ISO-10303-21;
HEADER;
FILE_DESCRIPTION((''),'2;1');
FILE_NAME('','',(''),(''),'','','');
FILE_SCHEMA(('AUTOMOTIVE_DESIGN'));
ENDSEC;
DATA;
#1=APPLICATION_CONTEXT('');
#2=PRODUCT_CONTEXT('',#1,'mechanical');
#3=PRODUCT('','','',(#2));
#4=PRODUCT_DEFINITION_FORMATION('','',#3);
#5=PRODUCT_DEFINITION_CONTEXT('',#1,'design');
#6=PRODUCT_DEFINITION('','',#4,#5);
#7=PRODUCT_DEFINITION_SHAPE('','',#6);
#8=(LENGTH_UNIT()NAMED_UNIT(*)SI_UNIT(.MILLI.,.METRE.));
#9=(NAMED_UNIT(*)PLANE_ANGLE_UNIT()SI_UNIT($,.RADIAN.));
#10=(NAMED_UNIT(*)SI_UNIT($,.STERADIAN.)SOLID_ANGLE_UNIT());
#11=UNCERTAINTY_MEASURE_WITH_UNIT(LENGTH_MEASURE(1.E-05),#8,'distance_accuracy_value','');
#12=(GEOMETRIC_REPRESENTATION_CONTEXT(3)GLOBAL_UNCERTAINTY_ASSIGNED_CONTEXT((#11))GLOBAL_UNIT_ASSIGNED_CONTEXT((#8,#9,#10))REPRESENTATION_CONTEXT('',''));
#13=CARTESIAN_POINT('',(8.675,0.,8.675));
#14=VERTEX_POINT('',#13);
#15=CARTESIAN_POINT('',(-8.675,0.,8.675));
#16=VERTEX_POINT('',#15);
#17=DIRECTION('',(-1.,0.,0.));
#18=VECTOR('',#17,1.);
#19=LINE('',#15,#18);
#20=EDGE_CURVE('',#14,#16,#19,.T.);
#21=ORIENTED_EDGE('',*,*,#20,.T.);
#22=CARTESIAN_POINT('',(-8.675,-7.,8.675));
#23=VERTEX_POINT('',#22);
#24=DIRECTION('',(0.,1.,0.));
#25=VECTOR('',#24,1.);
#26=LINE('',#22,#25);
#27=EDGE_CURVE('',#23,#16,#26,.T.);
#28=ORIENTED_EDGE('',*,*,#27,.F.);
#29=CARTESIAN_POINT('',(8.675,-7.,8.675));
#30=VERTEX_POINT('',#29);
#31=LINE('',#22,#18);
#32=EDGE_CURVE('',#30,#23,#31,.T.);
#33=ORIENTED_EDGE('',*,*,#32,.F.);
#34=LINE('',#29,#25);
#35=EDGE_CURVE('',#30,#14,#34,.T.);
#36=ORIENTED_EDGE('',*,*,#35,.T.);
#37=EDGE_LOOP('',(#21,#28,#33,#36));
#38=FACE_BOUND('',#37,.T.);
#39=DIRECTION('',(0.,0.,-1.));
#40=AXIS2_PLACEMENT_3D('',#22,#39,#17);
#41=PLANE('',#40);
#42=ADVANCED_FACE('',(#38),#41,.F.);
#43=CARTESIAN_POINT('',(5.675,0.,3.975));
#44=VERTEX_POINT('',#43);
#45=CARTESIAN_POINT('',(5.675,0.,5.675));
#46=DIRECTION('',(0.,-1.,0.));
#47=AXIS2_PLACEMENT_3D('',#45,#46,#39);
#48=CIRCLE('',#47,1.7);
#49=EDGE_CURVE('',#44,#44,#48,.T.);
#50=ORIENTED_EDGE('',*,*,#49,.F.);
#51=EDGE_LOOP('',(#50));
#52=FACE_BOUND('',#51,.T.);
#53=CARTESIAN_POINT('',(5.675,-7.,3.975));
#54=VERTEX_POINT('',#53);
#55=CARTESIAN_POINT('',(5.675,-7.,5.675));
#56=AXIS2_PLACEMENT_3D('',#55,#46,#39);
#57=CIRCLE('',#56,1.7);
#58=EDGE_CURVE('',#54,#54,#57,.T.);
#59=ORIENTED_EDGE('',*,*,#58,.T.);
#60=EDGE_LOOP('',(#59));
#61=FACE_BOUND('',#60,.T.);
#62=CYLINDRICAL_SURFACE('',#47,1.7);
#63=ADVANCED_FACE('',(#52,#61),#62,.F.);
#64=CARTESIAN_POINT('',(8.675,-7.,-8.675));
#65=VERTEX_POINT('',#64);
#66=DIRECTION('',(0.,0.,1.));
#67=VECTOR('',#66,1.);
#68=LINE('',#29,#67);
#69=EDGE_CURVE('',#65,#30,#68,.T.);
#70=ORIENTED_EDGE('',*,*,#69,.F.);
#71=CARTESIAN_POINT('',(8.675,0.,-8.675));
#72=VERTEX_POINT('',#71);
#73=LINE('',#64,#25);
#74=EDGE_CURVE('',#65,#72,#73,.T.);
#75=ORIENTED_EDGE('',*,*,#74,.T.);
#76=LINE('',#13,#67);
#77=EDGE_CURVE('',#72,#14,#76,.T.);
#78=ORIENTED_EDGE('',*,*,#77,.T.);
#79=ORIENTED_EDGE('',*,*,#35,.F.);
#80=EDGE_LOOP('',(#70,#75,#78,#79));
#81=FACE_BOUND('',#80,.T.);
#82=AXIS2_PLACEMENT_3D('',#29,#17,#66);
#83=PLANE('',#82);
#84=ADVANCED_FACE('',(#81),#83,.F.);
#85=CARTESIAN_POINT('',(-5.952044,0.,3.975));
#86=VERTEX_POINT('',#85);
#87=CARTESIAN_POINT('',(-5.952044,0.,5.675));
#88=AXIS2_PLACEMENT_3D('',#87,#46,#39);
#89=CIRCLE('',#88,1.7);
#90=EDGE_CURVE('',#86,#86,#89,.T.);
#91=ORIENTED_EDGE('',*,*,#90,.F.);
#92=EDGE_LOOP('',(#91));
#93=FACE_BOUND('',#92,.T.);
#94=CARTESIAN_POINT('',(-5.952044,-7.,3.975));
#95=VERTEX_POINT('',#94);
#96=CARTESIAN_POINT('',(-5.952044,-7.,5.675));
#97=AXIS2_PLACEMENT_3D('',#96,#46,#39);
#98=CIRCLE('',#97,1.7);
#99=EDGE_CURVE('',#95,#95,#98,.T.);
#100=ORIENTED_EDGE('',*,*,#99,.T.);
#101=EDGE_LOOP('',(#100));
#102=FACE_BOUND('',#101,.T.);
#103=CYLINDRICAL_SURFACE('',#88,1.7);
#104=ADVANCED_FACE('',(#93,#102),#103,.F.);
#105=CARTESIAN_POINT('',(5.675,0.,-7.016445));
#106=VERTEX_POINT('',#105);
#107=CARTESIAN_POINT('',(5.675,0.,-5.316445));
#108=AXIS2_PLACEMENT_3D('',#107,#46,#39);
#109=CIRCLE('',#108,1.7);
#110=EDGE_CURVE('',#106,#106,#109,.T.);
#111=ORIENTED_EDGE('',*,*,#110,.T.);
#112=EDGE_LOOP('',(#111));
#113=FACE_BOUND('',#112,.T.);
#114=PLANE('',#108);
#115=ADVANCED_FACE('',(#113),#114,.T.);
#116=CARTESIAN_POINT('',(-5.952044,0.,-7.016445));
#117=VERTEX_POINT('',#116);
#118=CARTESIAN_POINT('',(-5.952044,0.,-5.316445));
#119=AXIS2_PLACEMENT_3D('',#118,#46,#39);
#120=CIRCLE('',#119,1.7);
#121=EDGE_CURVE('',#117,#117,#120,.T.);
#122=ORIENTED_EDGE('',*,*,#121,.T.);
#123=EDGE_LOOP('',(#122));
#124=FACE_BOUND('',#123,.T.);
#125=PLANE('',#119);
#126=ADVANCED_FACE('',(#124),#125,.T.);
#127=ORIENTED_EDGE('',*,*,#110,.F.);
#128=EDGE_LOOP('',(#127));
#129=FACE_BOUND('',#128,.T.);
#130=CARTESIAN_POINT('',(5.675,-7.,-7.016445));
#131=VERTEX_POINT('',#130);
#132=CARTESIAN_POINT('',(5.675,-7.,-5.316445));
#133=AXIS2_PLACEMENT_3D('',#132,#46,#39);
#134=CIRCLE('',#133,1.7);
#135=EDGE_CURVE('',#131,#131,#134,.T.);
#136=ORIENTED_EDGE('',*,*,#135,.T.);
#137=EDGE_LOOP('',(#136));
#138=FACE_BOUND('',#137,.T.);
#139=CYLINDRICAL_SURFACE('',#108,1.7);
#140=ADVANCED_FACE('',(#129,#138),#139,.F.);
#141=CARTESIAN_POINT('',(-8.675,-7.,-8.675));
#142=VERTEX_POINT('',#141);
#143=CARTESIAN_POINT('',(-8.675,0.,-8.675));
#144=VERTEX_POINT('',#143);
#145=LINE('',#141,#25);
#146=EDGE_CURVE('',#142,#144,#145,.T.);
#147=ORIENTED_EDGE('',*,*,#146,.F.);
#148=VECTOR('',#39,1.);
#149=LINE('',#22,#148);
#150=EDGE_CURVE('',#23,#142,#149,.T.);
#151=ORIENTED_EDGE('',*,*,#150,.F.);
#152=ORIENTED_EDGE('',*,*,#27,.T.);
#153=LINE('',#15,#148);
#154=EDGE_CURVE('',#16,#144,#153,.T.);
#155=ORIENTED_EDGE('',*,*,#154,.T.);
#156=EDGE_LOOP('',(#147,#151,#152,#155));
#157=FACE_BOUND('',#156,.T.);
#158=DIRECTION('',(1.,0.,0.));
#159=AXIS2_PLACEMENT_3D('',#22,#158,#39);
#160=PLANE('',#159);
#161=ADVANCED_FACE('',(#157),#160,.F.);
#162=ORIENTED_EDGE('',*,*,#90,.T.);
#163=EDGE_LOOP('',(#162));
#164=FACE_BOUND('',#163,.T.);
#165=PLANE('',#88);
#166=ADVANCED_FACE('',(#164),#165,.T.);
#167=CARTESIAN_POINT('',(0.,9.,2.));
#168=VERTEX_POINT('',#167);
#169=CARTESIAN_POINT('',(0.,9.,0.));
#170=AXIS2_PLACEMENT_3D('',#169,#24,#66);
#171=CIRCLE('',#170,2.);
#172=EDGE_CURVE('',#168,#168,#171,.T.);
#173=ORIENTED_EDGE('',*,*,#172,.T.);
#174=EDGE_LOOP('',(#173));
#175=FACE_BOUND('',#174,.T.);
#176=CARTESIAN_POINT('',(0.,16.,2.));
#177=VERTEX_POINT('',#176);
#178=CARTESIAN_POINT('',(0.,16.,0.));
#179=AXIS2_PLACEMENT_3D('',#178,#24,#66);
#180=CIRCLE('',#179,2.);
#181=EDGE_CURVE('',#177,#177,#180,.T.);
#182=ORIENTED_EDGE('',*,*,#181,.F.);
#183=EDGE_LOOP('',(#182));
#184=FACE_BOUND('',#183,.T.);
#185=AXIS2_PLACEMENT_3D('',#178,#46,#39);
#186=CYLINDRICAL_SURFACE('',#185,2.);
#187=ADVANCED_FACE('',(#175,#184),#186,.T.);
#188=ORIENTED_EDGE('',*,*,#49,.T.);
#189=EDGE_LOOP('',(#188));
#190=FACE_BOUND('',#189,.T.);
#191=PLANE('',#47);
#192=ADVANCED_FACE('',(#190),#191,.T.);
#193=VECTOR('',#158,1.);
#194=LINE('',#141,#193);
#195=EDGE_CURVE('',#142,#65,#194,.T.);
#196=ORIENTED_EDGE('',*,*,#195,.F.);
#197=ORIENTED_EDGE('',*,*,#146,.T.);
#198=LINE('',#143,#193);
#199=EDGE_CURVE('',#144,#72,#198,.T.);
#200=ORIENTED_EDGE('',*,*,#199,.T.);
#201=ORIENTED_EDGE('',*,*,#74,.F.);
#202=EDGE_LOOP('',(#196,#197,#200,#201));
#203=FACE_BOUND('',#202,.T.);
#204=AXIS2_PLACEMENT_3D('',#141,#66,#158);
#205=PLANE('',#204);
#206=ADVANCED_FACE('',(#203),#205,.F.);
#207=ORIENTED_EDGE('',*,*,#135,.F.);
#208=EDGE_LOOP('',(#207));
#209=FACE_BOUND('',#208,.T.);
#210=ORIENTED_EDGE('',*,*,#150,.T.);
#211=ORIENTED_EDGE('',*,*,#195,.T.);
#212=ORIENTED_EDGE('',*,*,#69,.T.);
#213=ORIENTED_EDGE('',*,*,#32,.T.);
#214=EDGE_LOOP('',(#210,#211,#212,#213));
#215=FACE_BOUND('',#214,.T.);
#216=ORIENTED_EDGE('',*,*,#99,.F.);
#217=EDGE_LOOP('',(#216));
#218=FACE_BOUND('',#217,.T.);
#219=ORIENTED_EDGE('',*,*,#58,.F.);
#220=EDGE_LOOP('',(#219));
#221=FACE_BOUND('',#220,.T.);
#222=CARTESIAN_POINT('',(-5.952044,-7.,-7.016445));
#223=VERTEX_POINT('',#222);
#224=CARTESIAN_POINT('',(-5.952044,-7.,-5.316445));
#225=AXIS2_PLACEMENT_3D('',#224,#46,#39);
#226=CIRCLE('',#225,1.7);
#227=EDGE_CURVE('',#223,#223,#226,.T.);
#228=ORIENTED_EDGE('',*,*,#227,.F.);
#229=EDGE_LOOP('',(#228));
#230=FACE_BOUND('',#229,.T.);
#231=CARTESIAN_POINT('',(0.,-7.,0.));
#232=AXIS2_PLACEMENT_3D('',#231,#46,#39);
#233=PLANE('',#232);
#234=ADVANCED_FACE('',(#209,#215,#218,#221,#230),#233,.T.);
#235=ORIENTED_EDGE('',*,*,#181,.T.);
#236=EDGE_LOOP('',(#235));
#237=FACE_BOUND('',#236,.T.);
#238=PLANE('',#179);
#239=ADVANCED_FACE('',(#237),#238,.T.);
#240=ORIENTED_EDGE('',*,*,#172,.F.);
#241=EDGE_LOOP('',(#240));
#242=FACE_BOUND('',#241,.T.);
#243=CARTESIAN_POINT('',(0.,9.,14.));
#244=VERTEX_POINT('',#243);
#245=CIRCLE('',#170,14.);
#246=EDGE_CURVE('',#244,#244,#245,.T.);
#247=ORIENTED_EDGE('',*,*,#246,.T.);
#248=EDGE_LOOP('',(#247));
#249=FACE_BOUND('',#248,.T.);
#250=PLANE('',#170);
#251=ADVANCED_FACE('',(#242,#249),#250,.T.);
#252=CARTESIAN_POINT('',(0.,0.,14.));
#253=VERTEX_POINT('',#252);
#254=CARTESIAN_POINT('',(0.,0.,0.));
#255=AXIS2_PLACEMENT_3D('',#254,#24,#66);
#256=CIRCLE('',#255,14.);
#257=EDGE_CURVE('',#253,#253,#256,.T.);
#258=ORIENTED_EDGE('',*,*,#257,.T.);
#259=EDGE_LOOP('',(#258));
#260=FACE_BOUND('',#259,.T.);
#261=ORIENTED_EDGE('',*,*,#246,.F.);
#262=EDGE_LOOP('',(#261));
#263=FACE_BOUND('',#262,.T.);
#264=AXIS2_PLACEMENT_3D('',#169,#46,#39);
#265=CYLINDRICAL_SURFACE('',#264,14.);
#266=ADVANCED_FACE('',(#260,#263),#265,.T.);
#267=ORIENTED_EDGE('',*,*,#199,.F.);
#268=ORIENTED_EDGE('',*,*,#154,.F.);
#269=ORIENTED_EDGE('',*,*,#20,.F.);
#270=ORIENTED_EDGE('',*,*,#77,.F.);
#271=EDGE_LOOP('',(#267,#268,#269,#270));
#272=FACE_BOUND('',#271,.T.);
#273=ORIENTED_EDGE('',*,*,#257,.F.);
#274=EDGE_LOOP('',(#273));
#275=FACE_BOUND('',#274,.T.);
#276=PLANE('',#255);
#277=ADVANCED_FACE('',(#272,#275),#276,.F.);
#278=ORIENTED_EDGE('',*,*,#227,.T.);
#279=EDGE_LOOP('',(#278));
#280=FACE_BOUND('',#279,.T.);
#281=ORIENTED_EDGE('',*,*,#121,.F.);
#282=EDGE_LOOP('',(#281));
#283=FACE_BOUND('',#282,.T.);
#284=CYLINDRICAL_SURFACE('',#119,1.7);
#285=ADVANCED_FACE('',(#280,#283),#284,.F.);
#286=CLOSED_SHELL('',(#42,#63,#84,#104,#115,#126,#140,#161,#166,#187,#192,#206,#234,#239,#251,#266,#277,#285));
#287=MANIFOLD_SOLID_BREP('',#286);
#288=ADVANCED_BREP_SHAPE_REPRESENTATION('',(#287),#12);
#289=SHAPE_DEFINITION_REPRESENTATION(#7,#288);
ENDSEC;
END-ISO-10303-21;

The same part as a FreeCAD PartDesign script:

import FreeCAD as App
import Part
import Sketcher

doc = App.newDocument("Part")
body = doc.addObject("PartDesign::Body", "Body")

# Sketch on XZ plane
sketch1 = body.newObject("Sketcher::SketchObject", "Sketch")
sketch1.AttachmentSupport = (doc.getObject("XZ_Plane"), [""])
sketch1.MapMode = "FlatFace"
sketch1.addGeometry(Part.Circle(App.Vector(0, 0, 0), App.Vector(0, 0, 1), 14), False)
sketch1.addConstraint([
    Sketcher.Constraint("Coincident", 0, 3, -1, 1),
    Sketcher.Constraint("Diameter", 0, 28.0),
])
pad1 = body.newObject("PartDesign::Pad", "Pad")
pad1.Profile = sketch1
pad1.Length = 9
pad1.Reversed = True

# Sketch on XZ plane
sketch2 = body.newObject("Sketcher::SketchObject", "Sketch001")
sketch2.AttachmentSupport = (doc.getObject("XZ_Plane"), [""])
sketch2.MapMode = "FlatFace"
sketch2.addGeometry([
    Part.LineSegment(App.Vector(-8.675, 8.675, 0), App.Vector(-8.675, -8.675, 0)),
    Part.LineSegment(App.Vector(-8.675, -8.675, 0), App.Vector(8.675, -8.675, 0)),
    Part.LineSegment(App.Vector(8.675, -8.675, 0), App.Vector(8.675, 8.675, 0)),
    Part.LineSegment(App.Vector(8.675, 8.675, 0), App.Vector(-8.675, 8.675, 0)),
], False)
sketch2.addConstraint([
    Sketcher.Constraint("Coincident", 0, 2, 1, 1),
    Sketcher.Constraint("Coincident", 1, 2, 2, 1),
    Sketcher.Constraint("Coincident", 2, 2, 3, 1),
    Sketcher.Constraint("Coincident", 3, 2, 0, 1),
    Sketcher.Constraint("Vertical", 0),
    Sketcher.Constraint("Horizontal", 1),
    Sketcher.Constraint("Vertical", 2),
    Sketcher.Constraint("Horizontal", 3),
    Sketcher.Constraint("Symmetric", 0, 2, 2, 2, -1, 1),
    Sketcher.Constraint("Equal", 3, 0),
    Sketcher.Constraint("DistanceX", 1, 1, 1, 2, 17.35),
])
pad2 = body.newObject("PartDesign::Pad", "Pad001")
pad2.Profile = sketch2
pad2.Length = 7

# Sketch on XZ plane
sketch3 = body.newObject("Sketcher::SketchObject", "Sketch002")
sketch3.AttachmentSupport = (doc.getObject("XZ_Plane"), [""])
sketch3.MapMode = "FlatFace"
sketch3.AttachmentOffset = App.Placement(App.Vector(0, 0, 7), App.Rotation())
sketch3.addGeometry([
    Part.Circle(App.Vector(-5.952044, 5.675, 0), App.Vector(0, 0, 1), 1.7),
    Part.Circle(App.Vector(-5.952044, -5.316445, 0), App.Vector(0, 0, 1), 1.7),
    Part.Circle(App.Vector(5.675, -5.316445, 0), App.Vector(0, 0, 1), 1.7),
    Part.Circle(App.Vector(5.675, 5.675, 0), App.Vector(0, 0, 1), 1.7),
], False)
sketch3.addConstraint([
    Sketcher.Constraint("Equal", 0, 1),
    Sketcher.Constraint("Equal", 1, 2),
    Sketcher.Constraint("Equal", 2, 3),
    Sketcher.Constraint("Horizontal", 1, 3, 2, 3),
    Sketcher.Constraint("Horizontal", 0, 3, 3, 3),
    Sketcher.Constraint("Vertical", 0, 3, 1, 3),
    Sketcher.Constraint("Vertical", 2, 3, 3, 3),
    Sketcher.Constraint("Diameter", 0, 3.4),
    Sketcher.Constraint("DistanceY", -1, 1, 0, 3, 5.675),
    Sketcher.Constraint("DistanceX", -1, 1, 2, 3, 5.675),
    Sketcher.Constraint("DistanceX", 0, 3, -1, 1, 5.952044),
    Sketcher.Constraint("DistanceY", 1, 3, -1, 1, 5.316445),
])
pocket1 = body.newObject("PartDesign::Pocket", "Pocket")
pocket1.Profile = sketch3
pocket1.Length = 7

# Sketch on XZ plane
sketch4 = body.newObject("Sketcher::SketchObject", "Sketch003")
sketch4.AttachmentSupport = (doc.getObject("XZ_Plane"), [""])
sketch4.MapMode = "FlatFace"
sketch4.AttachmentOffset = App.Placement(App.Vector(0, 0, -9), App.Rotation())
sketch4.addGeometry(Part.Circle(App.Vector(0, 0, 0), App.Vector(0, 0, 1), 2), False)
sketch4.addConstraint([
    Sketcher.Constraint("Coincident", 0, 3, -1, 1),
    Sketcher.Constraint("Diameter", 0, 4.0),
])
pad3 = body.newObject("PartDesign::Pad", "Pad002")
pad3.Profile = sketch4
pad3.Length = 7
pad3.Reversed = True

doc.recompute()
